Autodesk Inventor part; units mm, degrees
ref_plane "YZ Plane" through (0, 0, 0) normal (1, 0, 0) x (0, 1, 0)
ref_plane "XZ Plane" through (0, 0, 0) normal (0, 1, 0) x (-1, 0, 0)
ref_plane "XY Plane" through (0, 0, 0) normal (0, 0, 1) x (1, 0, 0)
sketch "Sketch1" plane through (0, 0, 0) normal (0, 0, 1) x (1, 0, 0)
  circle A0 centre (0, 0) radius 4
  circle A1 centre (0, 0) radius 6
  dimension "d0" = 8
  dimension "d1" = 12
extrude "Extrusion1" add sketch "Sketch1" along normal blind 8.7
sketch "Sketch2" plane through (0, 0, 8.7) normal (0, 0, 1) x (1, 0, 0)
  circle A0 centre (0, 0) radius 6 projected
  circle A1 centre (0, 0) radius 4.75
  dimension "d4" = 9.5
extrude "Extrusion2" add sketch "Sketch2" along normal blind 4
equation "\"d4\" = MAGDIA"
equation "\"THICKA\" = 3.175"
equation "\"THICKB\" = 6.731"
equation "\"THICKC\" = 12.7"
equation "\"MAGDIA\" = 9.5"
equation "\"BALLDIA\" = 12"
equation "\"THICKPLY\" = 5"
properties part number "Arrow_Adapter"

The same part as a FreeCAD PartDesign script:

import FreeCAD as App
import Part
import Sketcher
from FreeCAD import Vector

doc = App.newDocument("Part")
body = doc.addObject("PartDesign::Body", "Body")

sketch1 = body.newObject("Sketcher::SketchObject", "Sketch")
sketch1.AttachmentSupport = (doc.getObject("XY_Plane"), [""])
sketch1.MapMode = "FlatFace"
sketch1.addGeometry(Part.Circle(Vector(0, 0, 0), Vector(0, 0, 1), 6), False)
sketch1.addGeometry(Part.Circle(Vector(0, 0, 0), Vector(0, 0, 1), 4), False)
sketch1.addConstraint(Sketcher.Constraint("Coincident", 0, 3, -1, 1))
sketch1.addConstraint(Sketcher.Constraint("Coincident", 1, 3, -1, 1))
sketch1.addConstraint(Sketcher.Constraint("Diameter", 0, 12.0))
sketch1.addConstraint(Sketcher.Constraint("Diameter", 1, 8.0))
pad1 = body.newObject("PartDesign::Pad", "Pad")
pad1.Profile = sketch1
pad1.Length = 8.7

sketch2 = body.newObject("Sketcher::SketchObject", "Sketch001")
sketch2.AttachmentSupport = (doc.getObject("XY_Plane"), [""])
sketch2.MapMode = "FlatFace"
sketch2.AttachmentOffset = App.Placement(Vector(0, 0, 8.7), App.Rotation())
sketch2.addGeometry(Part.Circle(Vector(0, 0, 0), Vector(0, 0, 1), 6), False)
sketch2.addGeometry(Part.Circle(Vector(0, 0, 0), Vector(0, 0, 1), 4.8), False)
sketch2.addConstraint(Sketcher.Constraint("Coincident", 0, 3, -1, 1))
sketch2.addConstraint(Sketcher.Constraint("Coincident", 1, 3, -1, 1))
sketch2.addConstraint(Sketcher.Constraint("Diameter", 1, 9.5))
sketch2.addConstraint(Sketcher.Constraint("Diameter", 0, 12.0))
pad2 = body.newObject("PartDesign::Pad", "Pad001")
pad2.Profile = sketch2
pad2.Length = 4

doc.recompute()
